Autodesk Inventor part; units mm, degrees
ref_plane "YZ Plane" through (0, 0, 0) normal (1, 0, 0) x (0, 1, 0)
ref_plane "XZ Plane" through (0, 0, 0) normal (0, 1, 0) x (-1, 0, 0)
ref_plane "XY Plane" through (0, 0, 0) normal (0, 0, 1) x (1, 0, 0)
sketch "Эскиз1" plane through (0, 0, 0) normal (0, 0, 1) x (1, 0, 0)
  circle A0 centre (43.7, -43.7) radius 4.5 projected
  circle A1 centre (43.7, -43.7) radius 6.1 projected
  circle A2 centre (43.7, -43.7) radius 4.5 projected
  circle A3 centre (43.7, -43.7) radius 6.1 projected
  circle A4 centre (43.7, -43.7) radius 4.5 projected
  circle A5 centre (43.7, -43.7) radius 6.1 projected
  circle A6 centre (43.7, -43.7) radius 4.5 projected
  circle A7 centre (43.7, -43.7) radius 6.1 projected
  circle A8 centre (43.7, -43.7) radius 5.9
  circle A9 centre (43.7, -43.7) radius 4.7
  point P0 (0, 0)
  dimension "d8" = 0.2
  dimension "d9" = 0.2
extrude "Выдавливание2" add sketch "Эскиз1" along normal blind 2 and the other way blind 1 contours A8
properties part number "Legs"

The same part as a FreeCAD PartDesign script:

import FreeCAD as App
import Part
import Sketcher

doc = App.newDocument("Part")
params = doc.addObject("Spreadsheet::Sheet", "Params")
for row, (alias, value) in enumerate([
    ("sketch1_diameter", "11.8 mm"),
    ("sketch1_diameter2", "9.4 mm"),
    ("pad1_length", "2 mm"),
    ("pad1_length2", "1 mm"),
], start=1):
    params.set(f"A{row}", alias)
    params.set(f"B{row}", "=" + value)
    params.setAlias(f"B{row}", alias)

body = doc.addObject("PartDesign::Body", "Body")

sketch1 = body.newObject("Sketcher::SketchObject", "Sketch")
sketch1.AttachmentSupport = (doc.getObject("XY_Plane"), [""])
sketch1.MapMode = "FlatFace"
sketch1.addGeometry(Part.Circle(App.Vector(43.7, -43.7, 0), App.Vector(0, 0, 1), 5.9), False)
sketch1.addGeometry(Part.Circle(App.Vector(43.7, -43.7, 0), App.Vector(0, 0, 1), 4.7), False)
sketch1.addConstraint(Sketcher.Constraint("Coincident", 1, 3, 0, 3))
sketch1.addConstraint(Sketcher.Constraint("Diameter", 0, 11.8))
sketch1.addConstraint(Sketcher.Constraint("Diameter", 1, 9.4))
sketch1.addConstraint(Sketcher.Constraint("DistanceX", -1, 1, 0, 3, 43.7))
sketch1.addConstraint(Sketcher.Constraint("DistanceY", 0, 3, -1, 1, 43.7))
sketch1.setExpression("Constraints[1]", "Params.sketch1_diameter")
sketch1.setExpression("Constraints[2]", "Params.sketch1_diameter2")
pad1 = body.newObject("PartDesign::Pad", "Pad")
pad1.Profile = sketch1
pad1.Type = "TwoLengths"
pad1.setExpression("Length", "Params.pad1_length")
pad1.setExpression("Length2", "Params.pad1_length2")

doc.recompute()
